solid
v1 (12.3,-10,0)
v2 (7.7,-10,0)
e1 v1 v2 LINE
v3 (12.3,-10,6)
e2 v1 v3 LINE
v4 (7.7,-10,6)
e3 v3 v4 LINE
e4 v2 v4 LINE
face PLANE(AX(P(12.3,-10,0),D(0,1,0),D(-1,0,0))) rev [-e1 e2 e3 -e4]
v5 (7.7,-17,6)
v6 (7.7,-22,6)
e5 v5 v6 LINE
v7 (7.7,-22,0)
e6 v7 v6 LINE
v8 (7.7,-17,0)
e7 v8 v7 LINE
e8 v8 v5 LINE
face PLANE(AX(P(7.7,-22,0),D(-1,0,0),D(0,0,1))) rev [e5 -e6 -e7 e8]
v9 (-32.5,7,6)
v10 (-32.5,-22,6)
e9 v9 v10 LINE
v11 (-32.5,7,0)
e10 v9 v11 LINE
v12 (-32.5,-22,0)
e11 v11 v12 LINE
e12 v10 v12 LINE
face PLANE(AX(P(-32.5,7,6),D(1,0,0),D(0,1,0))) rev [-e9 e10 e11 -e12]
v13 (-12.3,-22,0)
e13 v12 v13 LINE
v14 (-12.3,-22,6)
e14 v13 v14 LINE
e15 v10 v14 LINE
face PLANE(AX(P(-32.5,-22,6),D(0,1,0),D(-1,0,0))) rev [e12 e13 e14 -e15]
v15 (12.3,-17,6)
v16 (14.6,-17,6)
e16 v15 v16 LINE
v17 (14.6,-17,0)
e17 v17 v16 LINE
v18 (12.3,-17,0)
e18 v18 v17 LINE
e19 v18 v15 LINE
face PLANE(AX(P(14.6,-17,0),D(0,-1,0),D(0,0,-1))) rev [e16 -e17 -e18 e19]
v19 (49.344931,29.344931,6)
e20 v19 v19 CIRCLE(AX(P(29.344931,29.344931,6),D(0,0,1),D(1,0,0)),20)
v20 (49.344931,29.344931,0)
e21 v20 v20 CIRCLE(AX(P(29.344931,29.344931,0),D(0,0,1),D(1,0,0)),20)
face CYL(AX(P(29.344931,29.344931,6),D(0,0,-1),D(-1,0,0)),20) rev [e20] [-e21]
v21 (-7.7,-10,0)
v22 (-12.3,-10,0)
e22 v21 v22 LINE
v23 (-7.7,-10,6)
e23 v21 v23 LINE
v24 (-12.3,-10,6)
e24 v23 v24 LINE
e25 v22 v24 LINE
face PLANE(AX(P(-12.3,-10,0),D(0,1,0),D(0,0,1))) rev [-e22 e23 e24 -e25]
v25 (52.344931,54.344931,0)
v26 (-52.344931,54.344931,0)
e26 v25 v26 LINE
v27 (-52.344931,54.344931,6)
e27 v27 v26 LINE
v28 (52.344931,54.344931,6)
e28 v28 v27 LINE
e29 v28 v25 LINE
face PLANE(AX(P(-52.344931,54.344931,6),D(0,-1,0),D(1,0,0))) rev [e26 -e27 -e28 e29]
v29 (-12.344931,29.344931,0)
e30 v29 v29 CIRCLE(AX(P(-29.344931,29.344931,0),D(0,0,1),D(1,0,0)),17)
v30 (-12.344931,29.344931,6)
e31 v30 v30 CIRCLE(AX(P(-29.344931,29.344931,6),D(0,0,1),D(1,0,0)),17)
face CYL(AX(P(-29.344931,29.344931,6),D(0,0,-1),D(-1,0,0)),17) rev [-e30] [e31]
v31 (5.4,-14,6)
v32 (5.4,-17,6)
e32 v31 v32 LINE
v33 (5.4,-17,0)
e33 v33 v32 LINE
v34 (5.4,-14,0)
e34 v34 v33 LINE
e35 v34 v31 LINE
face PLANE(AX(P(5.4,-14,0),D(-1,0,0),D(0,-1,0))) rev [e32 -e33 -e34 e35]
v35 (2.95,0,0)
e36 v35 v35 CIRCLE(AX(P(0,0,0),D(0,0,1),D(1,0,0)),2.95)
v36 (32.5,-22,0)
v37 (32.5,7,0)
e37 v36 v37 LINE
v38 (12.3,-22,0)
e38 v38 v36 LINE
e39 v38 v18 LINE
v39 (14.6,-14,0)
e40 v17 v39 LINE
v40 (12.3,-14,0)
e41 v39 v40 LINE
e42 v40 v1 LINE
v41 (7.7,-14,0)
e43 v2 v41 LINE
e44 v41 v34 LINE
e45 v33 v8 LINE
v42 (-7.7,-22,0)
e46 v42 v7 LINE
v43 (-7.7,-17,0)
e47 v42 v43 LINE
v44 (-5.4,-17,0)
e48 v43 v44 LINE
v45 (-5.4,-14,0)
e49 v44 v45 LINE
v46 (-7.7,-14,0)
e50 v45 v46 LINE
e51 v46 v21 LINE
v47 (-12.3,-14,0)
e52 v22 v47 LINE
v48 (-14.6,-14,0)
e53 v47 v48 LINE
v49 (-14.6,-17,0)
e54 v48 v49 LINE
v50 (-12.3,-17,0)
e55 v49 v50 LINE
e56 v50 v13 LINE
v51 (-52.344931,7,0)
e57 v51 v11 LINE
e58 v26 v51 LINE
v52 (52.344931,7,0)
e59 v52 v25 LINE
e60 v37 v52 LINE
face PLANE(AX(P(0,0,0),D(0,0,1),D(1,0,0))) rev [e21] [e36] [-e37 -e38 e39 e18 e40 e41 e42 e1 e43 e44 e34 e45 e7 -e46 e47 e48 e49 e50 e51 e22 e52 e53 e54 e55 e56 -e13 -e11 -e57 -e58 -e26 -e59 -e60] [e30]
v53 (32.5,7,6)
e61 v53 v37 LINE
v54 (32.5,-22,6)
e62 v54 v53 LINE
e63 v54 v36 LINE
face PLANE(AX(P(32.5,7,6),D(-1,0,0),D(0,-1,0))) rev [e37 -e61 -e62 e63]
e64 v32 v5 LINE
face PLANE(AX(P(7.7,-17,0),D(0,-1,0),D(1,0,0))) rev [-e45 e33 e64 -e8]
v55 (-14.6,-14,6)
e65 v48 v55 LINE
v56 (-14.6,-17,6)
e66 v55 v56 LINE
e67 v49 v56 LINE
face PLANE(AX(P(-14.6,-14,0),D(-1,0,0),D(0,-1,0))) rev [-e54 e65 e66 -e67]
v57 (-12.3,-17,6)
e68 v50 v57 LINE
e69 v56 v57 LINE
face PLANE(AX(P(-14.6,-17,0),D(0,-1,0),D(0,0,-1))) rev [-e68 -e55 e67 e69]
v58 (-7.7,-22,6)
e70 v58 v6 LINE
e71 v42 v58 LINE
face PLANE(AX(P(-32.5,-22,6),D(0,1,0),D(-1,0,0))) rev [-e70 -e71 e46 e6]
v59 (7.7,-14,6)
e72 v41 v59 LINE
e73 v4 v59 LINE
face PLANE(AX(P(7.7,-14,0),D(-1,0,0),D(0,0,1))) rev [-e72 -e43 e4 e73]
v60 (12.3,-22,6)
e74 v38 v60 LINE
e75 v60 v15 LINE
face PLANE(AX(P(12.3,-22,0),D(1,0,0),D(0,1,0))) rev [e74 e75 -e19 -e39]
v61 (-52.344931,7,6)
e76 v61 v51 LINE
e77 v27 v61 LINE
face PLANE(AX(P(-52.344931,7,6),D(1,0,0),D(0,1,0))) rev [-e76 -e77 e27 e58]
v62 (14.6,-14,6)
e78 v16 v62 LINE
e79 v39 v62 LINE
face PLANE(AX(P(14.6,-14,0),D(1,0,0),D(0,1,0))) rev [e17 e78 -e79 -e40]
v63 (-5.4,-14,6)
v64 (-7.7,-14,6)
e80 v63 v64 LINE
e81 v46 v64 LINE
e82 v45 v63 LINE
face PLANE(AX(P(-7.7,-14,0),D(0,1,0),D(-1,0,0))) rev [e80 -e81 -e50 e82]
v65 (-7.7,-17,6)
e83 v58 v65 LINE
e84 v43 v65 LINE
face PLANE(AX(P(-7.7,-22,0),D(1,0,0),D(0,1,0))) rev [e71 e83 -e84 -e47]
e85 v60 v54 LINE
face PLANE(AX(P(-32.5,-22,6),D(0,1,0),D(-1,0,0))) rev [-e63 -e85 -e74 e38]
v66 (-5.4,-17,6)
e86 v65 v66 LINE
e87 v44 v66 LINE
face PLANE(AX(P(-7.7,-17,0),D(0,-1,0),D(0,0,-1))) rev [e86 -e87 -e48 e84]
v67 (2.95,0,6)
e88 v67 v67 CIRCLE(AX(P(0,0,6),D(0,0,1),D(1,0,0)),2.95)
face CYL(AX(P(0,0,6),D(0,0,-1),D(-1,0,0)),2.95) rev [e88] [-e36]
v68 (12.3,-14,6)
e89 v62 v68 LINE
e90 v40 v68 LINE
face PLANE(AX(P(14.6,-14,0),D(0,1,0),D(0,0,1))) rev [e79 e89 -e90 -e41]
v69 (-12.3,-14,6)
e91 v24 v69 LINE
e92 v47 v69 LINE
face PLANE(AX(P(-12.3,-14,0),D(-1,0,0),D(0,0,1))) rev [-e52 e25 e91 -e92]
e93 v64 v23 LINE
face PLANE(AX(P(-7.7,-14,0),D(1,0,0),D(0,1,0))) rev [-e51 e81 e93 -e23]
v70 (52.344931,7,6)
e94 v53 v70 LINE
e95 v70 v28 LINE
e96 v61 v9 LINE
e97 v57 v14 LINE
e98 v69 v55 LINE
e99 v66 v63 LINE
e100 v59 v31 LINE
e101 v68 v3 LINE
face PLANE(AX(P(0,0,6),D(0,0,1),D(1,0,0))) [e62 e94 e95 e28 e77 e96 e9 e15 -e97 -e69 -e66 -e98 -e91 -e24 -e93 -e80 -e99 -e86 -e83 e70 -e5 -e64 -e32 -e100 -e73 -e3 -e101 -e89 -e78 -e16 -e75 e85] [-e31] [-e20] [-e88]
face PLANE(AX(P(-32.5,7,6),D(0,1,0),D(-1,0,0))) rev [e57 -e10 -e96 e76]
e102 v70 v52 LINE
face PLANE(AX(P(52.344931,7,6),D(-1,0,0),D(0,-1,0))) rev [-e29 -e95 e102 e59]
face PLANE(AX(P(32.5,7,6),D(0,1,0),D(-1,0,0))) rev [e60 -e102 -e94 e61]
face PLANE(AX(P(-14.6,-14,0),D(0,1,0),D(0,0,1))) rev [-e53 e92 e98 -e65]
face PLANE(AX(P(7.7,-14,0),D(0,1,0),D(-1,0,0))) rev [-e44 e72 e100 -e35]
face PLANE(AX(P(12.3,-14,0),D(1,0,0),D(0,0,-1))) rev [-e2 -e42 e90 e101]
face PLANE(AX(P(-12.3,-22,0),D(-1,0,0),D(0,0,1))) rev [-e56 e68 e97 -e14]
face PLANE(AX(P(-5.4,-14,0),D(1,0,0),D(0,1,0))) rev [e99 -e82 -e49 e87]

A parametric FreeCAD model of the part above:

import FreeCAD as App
import Part
import Sketcher

doc = App.newDocument("Part")
body = doc.addObject("PartDesign::Body", "Body")

# Sketch on XY plane
sketch1 = body.newObject("Sketcher::SketchObject", "Sketch")
sketch1.AttachmentSupport = (doc.getObject("XY_Plane"), [""])
sketch1.MapMode = "FlatFace"
sketch1.addGeometry([
    Part.LineSegment(App.Vector(-32.5, 7, 0), App.Vector(-32.5, -22, 0)),  # 0
    Part.LineSegment(App.Vector(-32.5, -22, 0), App.Vector(32.5, -22, 0)),  # 1
    Part.LineSegment(App.Vector(32.5, -22, 0), App.Vector(32.5, 7, 0)),  # 2
    Part.LineSegment(App.Vector(32.5, 7, 0), App.Vector(52.344931, 7, 0)),  # 3
    Part.LineSegment(App.Vector(52.344931, 7, 0), App.Vector(52.344931, 54.344931, 0)),  # 4
    Part.LineSegment(App.Vector(52.344931, 54.344931, 0), App.Vector(-52.344931, 54.344931, 0)),  # 5
    Part.LineSegment(App.Vector(-52.344931, 54.344931, 0), App.Vector(-52.344931, 7, 0)),  # 6
    Part.LineSegment(App.Vector(-52.344931, 7, 0), App.Vector(-32.5, 7, 0)),  # 7
    Part.Circle(App.Vector(0, 0, 0), App.Vector(0, 0, 1), 2.95),  # 8
    Part.Circle(App.Vector(-29.344931, 29.344931, 0), App.Vector(0, 0, 1), 17),  # 9
    Part.Circle(App.Vector(29.344931, 29.344931, 0), App.Vector(0, 0, 1), 20),  # 10
], False)
sketch1.addConstraint([
    Sketcher.Constraint("Coincident", 0, 2, 1, 1),
    Sketcher.Constraint("Coincident", 1, 2, 2, 1),
    Sketcher.Constraint("Coincident", 2, 2, 3, 1),
    Sketcher.Constraint("Coincident", 3, 2, 4, 1),
    Sketcher.Constraint("Coincident", 4, 2, 5, 1),
    Sketcher.Constraint("Coincident", 5, 2, 6, 1),
    Sketcher.Constraint("Coincident", 6, 2, 7, 1),
    Sketcher.Constraint("Coincident", 7, 2, 0, 1),
    Sketcher.Constraint("Vertical", 0),
    Sketcher.Constraint("Horizontal", 1),
    Sketcher.Constraint("Vertical", 2),
    Sketcher.Constraint("Horizontal", 3),
    Sketcher.Constraint("Vertical", 4),
    Sketcher.Constraint("Horizontal", 5),
    Sketcher.Constraint("Vertical", 6),
    Sketcher.Constraint("Horizontal", 7),
    Sketcher.Constraint("Coincident", 8, 3, -1, 1),
    Sketcher.Constraint("Symmetric", 9, 3, 10, 3, -2),
    Sketcher.Constraint("Symmetric", 3, 2, 6, 2, -2),
    Sketcher.Constraint("Equal", 3, 7),
    Sketcher.Constraint("Diameter", 9, 34.0),
    Sketcher.Constraint("Diameter", 10, 40.0),
    Sketcher.Constraint("Diameter", 8, 5.9),
    Sketcher.Constraint("DistanceX", 1, 1, 1, 2, 65.0),
    Sketcher.Constraint("DistanceY", 0, 2, 0, 1, 29.0),
    Sketcher.Constraint("DistanceY", 0, 2, -1, 1, 22.0),
    Sketcher.Constraint("DistanceX", 10, 3, 3, 2, 23.0),
    Sketcher.Constraint("DistanceY", 10, 3, 4, 2, 25.0),
    Sketcher.Constraint("DistanceX", 3, 1, 3, 2, 19.844931),
    Sketcher.Constraint("DistanceY", 4, 1, 4, 2, 47.344931),
])
pad1 = body.newObject("PartDesign::Pad", "Pad")
pad1.Profile = sketch1
pad1.Length = 6

# Sketch on XY plane
sketch2 = body.newObject("Sketcher::SketchObject", "Sketch001")
sketch2.AttachmentSupport = (doc.getObject("XY_Plane"), [""])
sketch2.MapMode = "FlatFace"
sketch2.AttachmentOffset = App.Placement(App.Vector(0, 0, 6), App.Rotation())
sketch2.addGeometry([
    Part.LineSegment(App.Vector(-12.3, -22, 0), App.Vector(-7.7, -22, 0)),  # 0
    Part.LineSegment(App.Vector(-7.7, -22, 0), App.Vector(-7.7, -17, 0)),  # 1
    Part.LineSegment(App.Vector(-7.7, -17, 0), App.Vector(-5.4, -17, 0)),  # 2
    Part.LineSegment(App.Vector(-5.4, -17, 0), App.Vector(-5.4, -14, 0)),  # 3
    Part.LineSegment(App.Vector(-5.4, -14, 0), App.Vector(-7.7, -14, 0)),  # 4
    Part.LineSegment(App.Vector(-7.7, -14, 0), App.Vector(-7.7, -10, 0)),  # 5
    Part.LineSegment(App.Vector(-7.7, -10, 0), App.Vector(-12.3, -10, 0)),  # 6
    Part.LineSegment(App.Vector(-12.3, -10, 0), App.Vector(-12.3, -14, 0)),  # 7
    Part.LineSegment(App.Vector(-12.3, -14, 0), App.Vector(-14.6, -14, 0)),  # 8
    Part.LineSegment(App.Vector(-14.6, -14, 0), App.Vector(-14.6, -17, 0)),  # 9
    Part.LineSegment(App.Vector(-14.6, -17, 0), App.Vector(-12.3, -17, 0)),  # 10
    Part.LineSegment(App.Vector(-12.3, -17, 0), App.Vector(-12.3, -22, 0)),  # 11
    Part.LineSegment(App.Vector(7.7, -10, 0), App.Vector(7.7, -14, 0)),  # 12
    Part.LineSegment(App.Vector(7.7, -14, 0), App.Vector(5.4, -14, 0)),  # 13
    Part.LineSegment(App.Vector(5.4, -14, 0), App.Vector(5.4, -17, 0)),  # 14
    Part.LineSegment(App.Vector(5.4, -17, 0), App.Vector(7.7, -17, 0)),  # 15
    Part.LineSegment(App.Vector(7.7, -17, 0), App.Vector(7.7, -22, 0)),  # 16
    Part.LineSegment(App.Vector(7.7, -22, 0), App.Vector(12.3, -22, 0)),  # 17
    Part.LineSegment(App.Vector(12.3, -22, 0), App.Vector(12.3, -17, 0)),  # 18
    Part.LineSegment(App.Vector(12.3, -17, 0), App.Vector(14.6, -17, 0)),  # 19
    Part.LineSegment(App.Vector(14.6, -17, 0), App.Vector(14.6, -14, 0)),  # 20
    Part.LineSegment(App.Vector(14.6, -14, 0), App.Vector(12.3, -14, 0)),  # 21
    Part.LineSegment(App.Vector(12.3, -14, 0), App.Vector(12.3, -10, 0)),  # 22
    Part.LineSegment(App.Vector(12.3, -10, 0), App.Vector(7.7, -10, 0)),  # 23
], False)
sketch2.addConstraint([
    Sketcher.Constraint("Coincident", 0, 2, 1, 1),
    Sketcher.Constraint("Coincident", 1, 2, 2, 1),
    Sketcher.Constraint("Coincident", 2, 2, 3, 1),
    Sketcher.Constraint("Coincident", 3, 2, 4, 1),
    Sketcher.Constraint("Coincident", 4, 2, 5, 1),
    Sketcher.Constraint("Coincident", 5, 2, 6, 1),
    Sketcher.Constraint("Coincident", 6, 2, 7, 1),
    Sketcher.Constraint("Coincident", 7, 2, 8, 1),
    Sketcher.Constraint("Coincident", 8, 2, 9, 1),
    Sketcher.Constraint("Coincident", 9, 2, 10, 1),
    Sketcher.Constraint("Coincident", 10, 2, 11, 1),
    Sketcher.Constraint("Coincident", 11, 2, 0, 1),
    Sketcher.Constraint("Coincident", 12, 2, 13, 1),
    Sketcher.Constraint("Coincident", 13, 2, 14, 1),
    Sketcher.Constraint("Coincident", 14, 2, 15, 1),
    Sketcher.Constraint("Coincident", 15, 2, 16, 1),
    Sketcher.Constraint("Coincident", 16, 2, 17, 1),
    Sketcher.Constraint("Coincident", 17, 2, 18, 1),
    Sketcher.Constraint("Coincident", 18, 2, 19, 1),
    Sketcher.Constraint("Coincident", 19, 2, 20, 1),
    Sketcher.Constraint("Coincident", 20, 2, 21, 1),
    Sketcher.Constraint("Coincident", 21, 2, 22, 1),
    Sketcher.Constraint("Coincident", 22, 2, 23, 1),
    Sketcher.Constraint("Coincident", 23, 2, 12, 1),
    Sketcher.Constraint("Horizontal", 0),
    Sketcher.Constraint("Vertical", 1),
    Sketcher.Constraint("Horizontal", 2),
    Sketcher.Constraint("Vertical", 3),
    Sketcher.Constraint("Horizontal", 4),
    Sketcher.Constraint("Vertical", 5),
    Sketcher.Constraint("Horizontal", 6),
    Sketcher.Constraint("Vertical", 7),
    Sketcher.Constraint("Horizontal", 8),
    Sketcher.Constraint("Vertical", 9),
    Sketcher.Constraint("Horizontal", 10),
    Sketcher.Constraint("Vertical", 11),
    Sketcher.Constraint("Vertical", 12),
    Sketcher.Constraint("Horizontal", 13),
    Sketcher.Constraint("Vertical", 14),
    Sketcher.Constraint("Horizontal", 15),
    Sketcher.Constraint("Vertical", 16),
    Sketcher.Constraint("Horizontal", 17),
    Sketcher.Constraint("Vertical", 18),
    Sketcher.Constraint("Horizontal", 19),
    Sketcher.Constraint("Vertical", 20),
    Sketcher.Constraint("Horizontal", 21),
    Sketcher.Constraint("Vertical", 22),
    Sketcher.Constraint("Horizontal", 23),
    Sketcher.Constraint("Symmetric", 4, 2, 12, 2, -2),
    Sketcher.Constraint("Symmetric", 2, 2, 14, 2, -2),
    Sketcher.Constraint("Symmetric", 0, 2, 16, 2, -2),
    Sketcher.Constraint("Symmetric", 10, 2, 18, 2, -2),
    Sketcher.Constraint("Symmetric", 8, 2, 20, 2, -2),
    Sketcher.Constraint("Symmetric", 6, 2, 22, 2, -2),
    Sketcher.Constraint("Horizontal", 4, 2, 7, 2),
    Sketcher.Constraint("Horizontal", 2, 2, 9, 2),
    Sketcher.Constraint("Vertical", 1, 2, 4, 2),
    Sketcher.Constraint("Vertical", 7, 2, 10, 2),
    Sketcher.Constraint("Equal", 4, 8),
    Sketcher.Constraint("DistanceY", 1, 1, 1, 2, 5.0),
    Sketcher.Constraint("DistanceY", 3, 1, 3, 2, 3.0),
    Sketcher.Constraint("DistanceY", 5, 1, 5, 2, 4.0),
    Sketcher.Constraint("DistanceX", 0, 1, 0, 2, 4.6),
    Sketcher.Constraint("DistanceX", 2, 1, 2, 2, 2.3),
    Sketcher.Constraint("DistanceY", 0, 2, -1, 1, 22.0),
    Sketcher.Constraint("DistanceX", 0, 2, -1, 1, 7.7),
])
pocket1 = body.newObject("PartDesign::Pocket", "Pocket")
pocket1.Profile = sketch2
pocket1.Type = "ThroughAll"

doc.recompute()
